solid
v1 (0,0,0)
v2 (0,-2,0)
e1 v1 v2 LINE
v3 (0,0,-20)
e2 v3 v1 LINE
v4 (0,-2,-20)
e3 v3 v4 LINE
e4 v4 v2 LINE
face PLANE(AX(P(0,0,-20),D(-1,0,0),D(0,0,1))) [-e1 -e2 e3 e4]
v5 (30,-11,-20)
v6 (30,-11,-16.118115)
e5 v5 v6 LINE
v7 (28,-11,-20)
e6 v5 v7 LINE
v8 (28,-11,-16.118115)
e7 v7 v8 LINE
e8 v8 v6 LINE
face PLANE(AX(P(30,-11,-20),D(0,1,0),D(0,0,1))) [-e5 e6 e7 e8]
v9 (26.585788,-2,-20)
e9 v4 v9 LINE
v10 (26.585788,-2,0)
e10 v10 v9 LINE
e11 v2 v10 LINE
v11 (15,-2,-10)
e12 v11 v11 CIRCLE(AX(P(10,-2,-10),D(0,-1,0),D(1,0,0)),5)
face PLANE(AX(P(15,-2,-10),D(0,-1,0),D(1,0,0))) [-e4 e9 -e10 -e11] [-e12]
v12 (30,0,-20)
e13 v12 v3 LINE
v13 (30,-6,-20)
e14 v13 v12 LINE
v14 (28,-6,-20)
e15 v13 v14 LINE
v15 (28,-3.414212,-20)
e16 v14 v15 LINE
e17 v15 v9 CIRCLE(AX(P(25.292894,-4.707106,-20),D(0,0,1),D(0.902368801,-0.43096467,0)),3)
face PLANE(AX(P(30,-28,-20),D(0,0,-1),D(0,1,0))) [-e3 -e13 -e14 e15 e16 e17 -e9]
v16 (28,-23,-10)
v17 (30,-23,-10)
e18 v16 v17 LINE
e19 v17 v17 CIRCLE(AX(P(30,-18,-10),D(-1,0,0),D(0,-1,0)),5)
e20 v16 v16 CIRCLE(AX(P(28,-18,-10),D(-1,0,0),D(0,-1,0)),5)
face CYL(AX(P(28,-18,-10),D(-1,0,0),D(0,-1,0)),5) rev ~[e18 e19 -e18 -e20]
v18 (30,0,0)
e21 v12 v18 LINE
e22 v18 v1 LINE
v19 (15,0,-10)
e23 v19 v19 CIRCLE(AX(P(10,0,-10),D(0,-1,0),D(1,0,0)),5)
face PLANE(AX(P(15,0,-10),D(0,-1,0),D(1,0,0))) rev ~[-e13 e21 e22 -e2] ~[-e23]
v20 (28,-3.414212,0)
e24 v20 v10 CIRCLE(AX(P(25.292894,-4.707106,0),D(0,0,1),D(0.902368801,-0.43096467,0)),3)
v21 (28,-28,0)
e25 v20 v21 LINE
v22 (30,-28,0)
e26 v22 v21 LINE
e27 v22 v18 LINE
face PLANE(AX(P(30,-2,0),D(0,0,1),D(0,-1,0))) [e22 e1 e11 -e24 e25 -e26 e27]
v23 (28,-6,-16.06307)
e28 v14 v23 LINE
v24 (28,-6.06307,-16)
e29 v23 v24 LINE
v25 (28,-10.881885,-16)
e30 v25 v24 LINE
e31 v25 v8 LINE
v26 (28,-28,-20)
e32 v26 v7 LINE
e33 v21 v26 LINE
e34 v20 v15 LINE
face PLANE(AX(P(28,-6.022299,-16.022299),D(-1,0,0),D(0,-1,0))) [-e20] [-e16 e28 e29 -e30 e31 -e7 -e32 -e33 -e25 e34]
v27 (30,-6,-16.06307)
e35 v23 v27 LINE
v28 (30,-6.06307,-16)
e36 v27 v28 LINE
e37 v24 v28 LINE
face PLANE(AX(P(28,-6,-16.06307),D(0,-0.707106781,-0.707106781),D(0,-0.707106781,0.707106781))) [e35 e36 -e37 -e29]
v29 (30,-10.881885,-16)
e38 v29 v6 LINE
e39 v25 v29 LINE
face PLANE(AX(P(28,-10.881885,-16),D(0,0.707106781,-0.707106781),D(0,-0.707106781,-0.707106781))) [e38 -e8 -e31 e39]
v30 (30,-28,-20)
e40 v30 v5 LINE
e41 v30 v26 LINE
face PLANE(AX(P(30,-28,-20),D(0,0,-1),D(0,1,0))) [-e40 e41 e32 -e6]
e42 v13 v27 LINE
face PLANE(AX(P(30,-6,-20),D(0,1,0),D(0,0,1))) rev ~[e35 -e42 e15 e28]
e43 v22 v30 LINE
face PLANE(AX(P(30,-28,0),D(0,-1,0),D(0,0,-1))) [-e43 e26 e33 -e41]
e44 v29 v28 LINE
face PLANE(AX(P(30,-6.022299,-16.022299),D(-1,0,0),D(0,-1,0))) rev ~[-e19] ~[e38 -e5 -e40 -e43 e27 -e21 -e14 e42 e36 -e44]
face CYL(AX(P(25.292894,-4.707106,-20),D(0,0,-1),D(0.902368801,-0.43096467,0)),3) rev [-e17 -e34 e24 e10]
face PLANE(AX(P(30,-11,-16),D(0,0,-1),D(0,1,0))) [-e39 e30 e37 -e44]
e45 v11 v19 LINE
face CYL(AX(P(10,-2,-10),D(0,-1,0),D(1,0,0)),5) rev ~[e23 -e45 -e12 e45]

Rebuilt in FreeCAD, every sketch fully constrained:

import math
import FreeCAD as App
import Part
import Sketcher
from FreeCAD import Vector
Q = App.Units.Quantity

doc = App.newDocument("Part")
body = doc.addObject("PartDesign::Body", "Body")

# Sketch on XZ plane
sketch1 = body.newObject("Sketcher::SketchObject", "Sketch")
sketch1.AttachmentSupport = (doc.getObject("XZ_Plane"), [""])
sketch1.MapMode = "FlatFace"
sketch1.addGeometry(Part.LineSegment(Vector(0, 0, 0), Vector(0, -20, 0)), False)
sketch1.addGeometry(Part.LineSegment(Vector(0, -20, 0), Vector(30, -20, 0)), False)
sketch1.addGeometry(Part.LineSegment(Vector(30, -20, 0), Vector(30, 0, 0)), False)
sketch1.addGeometry(Part.LineSegment(Vector(30, 0, 0), Vector(0, 0, 0)), False)
sketch1.addConstraint(Sketcher.Constraint("Coincident", 0, 2, 1, 1))
sketch1.addConstraint(Sketcher.Constraint("Coincident", 1, 2, 2, 1))
sketch1.addConstraint(Sketcher.Constraint("Coincident", 2, 2, 3, 1))
sketch1.addConstraint(Sketcher.Constraint("Coincident", 3, 2, 0, 1))
sketch1.addConstraint(Sketcher.Constraint("Vertical", 0))
sketch1.addConstraint(Sketcher.Constraint("Horizontal", 1))
sketch1.addConstraint(Sketcher.Constraint("Vertical", 2))
sketch1.addConstraint(Sketcher.Constraint("Horizontal", 3))
sketch1.addConstraint(Sketcher.Constraint("Coincident", 3, 2, -1, 1))
sketch1.addConstraint(Sketcher.Constraint("DistanceX", 1, 1, 1, 2, Q("30 mm")))
sketch1.addConstraint(Sketcher.Constraint("DistanceY", 0, 2, 0, 1, Q("20 mm")))
pad1 = body.newObject("PartDesign::Pad", "Pad")
pad1.Profile = sketch1
pad1.Length = 2

# Sketch on XZ plane
sketch2 = body.newObject("Sketcher::SketchObject", "Sketch001")
sketch2.AttachmentSupport = (doc.getObject("XZ_Plane"), [""])
sketch2.MapMode = "FlatFace"
sketch2.AttachmentOffset = App.Placement(Vector(0, 0, 2), App.Rotation())
sketch2.addGeometry(Part.Circle(Vector(10, -10, 0), Vector(0, 0, 1), 5), False)
sketch2.addConstraint(Sketcher.Constraint("Diameter", 0, Q("10 mm")))
sketch2.addConstraint(Sketcher.Constraint("DistanceX", -1, 1, 0, 3, Q("10 mm")))
sketch2.addConstraint(Sketcher.Constraint("DistanceY", 0, 3, -1, 1, Q("10 mm")))
pocket1 = body.newObject("PartDesign::Pocket", "Pocket")
pocket1.Profile = sketch2
pocket1.Length = 25

# Sketch on YZ plane
sketch3 = body.newObject("Sketcher::SketchObject", "Sketch002")
sketch3.AttachmentSupport = (doc.getObject("YZ_Plane"), [""])
sketch3.MapMode = "FlatFace"
sketch3.AttachmentOffset = App.Placement(Vector(0, 0, 30), App.Rotation())
sketch3.addGeometry(Part.LineSegment(Vector(-2, -20, 0), Vector(-2, 0, 0)), False)
sketch3.addGeometry(Part.LineSegment(Vector(-2, 0, 0), Vector(-28, 0, 0)), False)
sketch3.addGeometry(Part.LineSegment(Vector(-28, 0, 0), Vector(-28, -20, 0)), False)
sketch3.addGeometry(Part.LineSegment(Vector(-28, -20, 0), Vector(-2, -20, 0)), False)
sketch3.addConstraint(Sketcher.Constraint("Coincident", 0, 2, 1, 1))
sketch3.addConstraint(Sketcher.Constraint("Coincident", 1, 2, 2, 1))
sketch3.addConstraint(Sketcher.Constraint("Coincident", 2, 2, 3, 1))
sketch3.addConstraint(Sketcher.Constraint("Coincident", 3, 2, 0, 1))
sketch3.addConstraint(Sketcher.Constraint("Vertical", 0))
sketch3.addConstraint(Sketcher.Constraint("Horizontal", 1))
sketch3.addConstraint(Sketcher.Constraint("Vertical", 2))
sketch3.addConstraint(Sketcher.Constraint("Horizontal", 3))
sketch3.addConstraint(Sketcher.Constraint("PointOnObject", 0, 2, -1))
sketch3.addConstraint(Sketcher.Constraint("DistanceX", 1, 2, 1, 1, Q("26 mm")))
sketch3.addConstraint(Sketcher.Constraint("DistanceY", 0, 1, 0, 2, Q("20 mm")))
sketch3.addConstraint(Sketcher.Constraint("DistanceX", 0, 2, -1, 1, Q("2 mm")))
pad2 = body.newObject("PartDesign::Pad", "Pad001")
pad2.Profile = sketch3
pad2.Length = 2
pad2.Reversed = True

# Sketch on YZ plane
sketch4 = body.newObject("Sketcher::SketchObject", "Sketch003")
sketch4.AttachmentSupport = (doc.getObject("YZ_Plane"), [""])
sketch4.MapMode = "FlatFace"
sketch4.AttachmentOffset = App.Placement(Vector(0, 0, 30), App.Rotation())
sketch4.addGeometry(Part.LineSegment(Vector(-11, -16, 0), Vector(-11, -20, 0)), False)
sketch4.addGeometry(Part.LineSegment(Vector(-11, -20, 0), Vector(-6, -20, 0)), False)
sketch4.addGeometry(Part.LineSegment(Vector(-6, -20, 0), Vector(-6, -16, 0)), False)
sketch4.addGeometry(Part.LineSegment(Vector(-6, -16, 0), Vector(-11, -16, 0)), False)
sketch4.addConstraint(Sketcher.Constraint("Coincident", 0, 2, 1, 1))
sketch4.addConstraint(Sketcher.Constraint("Coincident", 1, 2, 2, 1))
sketch4.addConstraint(Sketcher.Constraint("Coincident", 2, 2, 3, 1))
sketch4.addConstraint(Sketcher.Constraint("Coincident", 3, 2, 0, 1))
sketch4.addConstraint(Sketcher.Constraint("Vertical", 0))
sketch4.addConstraint(Sketcher.Constraint("Horizontal", 1))
sketch4.addConstraint(Sketcher.Constraint("Vertical", 2))
sketch4.addConstraint(Sketcher.Constraint("Horizontal", 3))
sketch4.addConstraint(Sketcher.Constraint("DistanceX", 1, 1, 1, 2, Q("5 mm")))
sketch4.addConstraint(Sketcher.Constraint("DistanceY", 0, 2, 0, 1, Q("4 mm")))
sketch4.addConstraint(Sketcher.Constraint("DistanceX", 0, 2, -1, 1, Q("11 mm")))
sketch4.addConstraint(Sketcher.Constraint("DistanceY", 0, 2, -1, 1, Q("20 mm")))
pocket2 = body.newObject("PartDesign::Pocket", "Pocket001")
pocket2.Profile = sketch4
pocket2.Length = 25

# Sketch on YZ plane
sketch5 = body.newObject("Sketcher::SketchObject", "Sketch004")
sketch5.AttachmentSupport = (doc.getObject("YZ_Plane"), [""])
sketch5.MapMode = "FlatFace"
sketch5.AttachmentOffset = App.Placement(Vector(0, 0, 28), App.Rotation())
sketch5.addGeometry(Part.Circle(Vector(-18, -10, 0), Vector(0, 0, 1), 5), False)
sketch5.addConstraint(Sketcher.Constraint("Diameter", 0, Q("10 mm")))
sketch5.addConstraint(Sketcher.Constraint("DistanceX", 0, 3, -1, 1, Q("18 mm")))
sketch5.addConstraint(Sketcher.Constraint("DistanceY", 0, 3, -1, 1, Q("10 mm")))
pocket3 = body.newObject("PartDesign::Pocket", "Pocket002")
pocket3.Profile = sketch5
pocket3.Length = 25
pocket3.Reversed = True

# Sketch on XY plane
sketch6 = body.newObject("Sketcher::SketchObject", "Sketch005")
sketch6.AttachmentSupport = (doc.getObject("XY_Plane"), [""])
sketch6.MapMode = "FlatFace"
sketch6.AttachmentOffset = App.Placement(Vector(0, 0, -20), App.Rotation())
sketch6.addGeometry(Part.ArcOfCircle(Part.Circle(Vector(25.3, -4.7, 0), Vector(0, 0, 1), 3), math.radians(-26), math.radians(116)), False)
sketch6.addGeometry(Part.LineSegment(Vector(24, -2, 0), Vector(24, 0, 0)), False)
sketch6.addGeometry(Part.LineSegment(Vector(24, 0, 0), Vector(30, 0, 0)), False)
sketch6.addGeometry(Part.LineSegment(Vector(30, 0, 0), Vector(30, -6, 0)), False)
sketch6.addGeometry(Part.LineSegment(Vector(30, -6, 0), Vector(28, -6, 0)), False)
sketch6.addConstraint(Sketcher.Constraint("Coincident", 0, 2, 1, 1))
sketch6.addConstraint(Sketcher.Constraint("Coincident", 1, 2, 2, 1))
sketch6.addConstraint(Sketcher.Constraint("Coincident", 2, 2, 3, 1))
sketch6.addConstraint(Sketcher.Constraint("Coincident", 3, 2, 4, 1))
sketch6.addConstraint(Sketcher.Constraint("Coincident", 4, 2, 0, 1))
sketch6.addConstraint(Sketcher.Constraint("Vertical", 1))
sketch6.addConstraint(Sketcher.Constraint("Horizontal", 2))
sketch6.addConstraint(Sketcher.Constraint("Vertical", 3))
sketch6.addConstraint(Sketcher.Constraint("Horizontal", 4))
sketch6.addConstraint(Sketcher.Constraint("PointOnObject", 1, 2, -1))
sketch6.addConstraint(Sketcher.Constraint("Equal", 4, 1))
sketch6.addConstraint(Sketcher.Constraint("Equal", 2, 3))
sketch6.addConstraint(Sketcher.Constraint("Radius", 0, Q("3 mm")))
sketch6.addConstraint(Sketcher.Constraint("DistanceX", 2, 1, 2, 2, Q("6 mm")))
sketch6.addConstraint(Sketcher.Constraint("DistanceX", 4, 2, 4, 1, Q("2 mm")))
sketch6.addConstraint(Sketcher.Constraint("DistanceX", -1, 1, 0, 2, Q("24 mm")))
pad3 = body.newObject("PartDesign::Pad", "Pad002")
pad3.Profile = sketch6
pad3.Length = 20

# Sketch on YZ plane
sketch7 = body.newObject("Sketcher::SketchObject", "Sketch006")
sketch7.AttachmentSupport = (doc.getObject("YZ_Plane"), [""])
sketch7.MapMode = "FlatFace"
sketch7.AttachmentOffset = App.Placement(Vector(0, 0, 28), App.Rotation())
sketch7.addGeometry(Part.LineSegment(Vector(-11, -16, 0), Vector(-10.88, -16, 0)), False)
sketch7.addGeometry(Part.LineSegment(Vector(-10.88, -16, 0), Vector(-11, -16.12, 0)), False)
sketch7.addGeometry(Part.LineSegment(Vector(-11, -16.12, 0), Vector(-11, -16, 0)), False)
sketch7.addConstraint(Sketcher.Constraint("Coincident", 0, 2, 1, 1))
sketch7.addConstraint(Sketcher.Constraint("Coincident", 1, 2, 2, 1))
sketch7.addConstraint(Sketcher.Constraint("Coincident", 2, 2, 0, 1))
sketch7.addConstraint(Sketcher.Constraint("Horizontal", 0))
sketch7.addConstraint(Sketcher.Constraint("Vertical", 2))
sketch7.addConstraint(Sketcher.Constraint("Equal", 0, 2))
sketch7.addConstraint(Sketcher.Constraint("DistanceY", 0, 2, -1, 1, Q("16 mm")))
sketch7.addConstraint(Sketcher.Constraint("DistanceX", 1, 2, -1, 1, Q("11 mm")))
sketch7.addConstraint(Sketcher.Constraint("Distance", 1, Q("0.16704 mm")))
pad4 = body.newObject("PartDesign::Pad", "Pad003")
pad4.Profile = sketch7
pad4.Length = 2

# Sketch on YZ plane
sketch8 = body.newObject("Sketcher::SketchObject", "Sketch007")
sketch8.AttachmentSupport = (doc.getObject("YZ_Plane"), [""])
sketch8.MapMode = "FlatFace"
sketch8.AttachmentOffset = App.Placement(Vector(0, 0, 28), App.Rotation())
sketch8.addGeometry(Part.LineSegment(Vector(-6.06, -16, 0), Vector(-6, -16, 0)), False)
sketch8.addGeometry(Part.LineSegment(Vector(-6, -16, 0), Vector(-6, -16.06, 0)), False)
sketch8.addGeometry(Part.LineSegment(Vector(-6, -16.06, 0), Vector(-6.06, -16, 0)), False)
sketch8.addConstraint(Sketcher.Constraint("Coincident", 0, 2, 1, 1))
sketch8.addConstraint(Sketcher.Constraint("Coincident", 1, 2, 2, 1))
sketch8.addConstraint(Sketcher.Constraint("Coincident", 2, 2, 0, 1))
sketch8.addConstraint(Sketcher.Constraint("Horizontal", 0))
sketch8.addConstraint(Sketcher.Constraint("Vertical", 1))
sketch8.addConstraint(Sketcher.Constraint("Equal", 0, 1))
sketch8.addConstraint(Sketcher.Constraint("DistanceX", 0, 2, -1, 1, Q("6 mm")))
sketch8.addConstraint(Sketcher.Constraint("DistanceY", 0, 2, -1, 1, Q("16 mm")))
sketch8.addConstraint(Sketcher.Constraint("DistanceX", 0, 1, 0, 2, Q("0.06307 mm")))
pad5 = body.newObject("PartDesign::Pad", "Pad004")
pad5.Profile = sketch8
pad5.Length = 2

doc.recompute()
